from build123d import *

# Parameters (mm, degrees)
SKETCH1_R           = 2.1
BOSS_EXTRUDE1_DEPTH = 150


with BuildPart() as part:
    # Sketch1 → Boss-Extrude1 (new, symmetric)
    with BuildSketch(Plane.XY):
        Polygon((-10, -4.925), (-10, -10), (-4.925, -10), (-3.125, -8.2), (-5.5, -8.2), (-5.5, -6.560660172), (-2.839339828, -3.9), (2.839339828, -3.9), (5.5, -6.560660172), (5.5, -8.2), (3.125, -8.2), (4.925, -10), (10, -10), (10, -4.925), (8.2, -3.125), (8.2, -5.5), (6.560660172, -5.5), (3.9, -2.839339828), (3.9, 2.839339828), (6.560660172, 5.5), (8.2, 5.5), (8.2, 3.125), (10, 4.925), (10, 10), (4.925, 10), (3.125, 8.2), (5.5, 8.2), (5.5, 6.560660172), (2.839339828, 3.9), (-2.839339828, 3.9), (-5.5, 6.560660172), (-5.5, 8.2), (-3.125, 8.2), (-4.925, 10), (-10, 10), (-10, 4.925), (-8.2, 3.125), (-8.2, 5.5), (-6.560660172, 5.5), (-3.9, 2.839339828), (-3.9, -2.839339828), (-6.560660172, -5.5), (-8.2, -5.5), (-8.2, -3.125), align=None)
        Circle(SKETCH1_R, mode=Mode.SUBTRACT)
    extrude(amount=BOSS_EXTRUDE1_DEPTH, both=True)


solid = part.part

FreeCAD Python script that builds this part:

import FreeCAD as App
import Part
import Sketcher

doc = App.newDocument("Part")
params = doc.addObject("Spreadsheet::Sheet", "Params")
for row, (alias, value) in enumerate([
    ("sketch1_diameter", "4.2 mm"),
    ("pad1_length", "300 mm"),
], start=1):
    params.set(f"A{row}", alias)
    params.set(f"B{row}", "=" + value)
    params.setAlias(f"B{row}", alias)

body = doc.addObject("PartDesign::Body", "Body")

sketch1 = body.newObject("Sketcher::SketchObject", "Sketch")
sketch1.AttachmentSupport = (doc.getObject("XY_Plane"), [""])
sketch1.MapMode = "FlatFace"
sketch1.addGeometry([
    Part.LineSegment(App.Vector(-10, -4.925, 0), App.Vector(-10, -10, 0)),
    Part.LineSegment(App.Vector(-10, -10, 0), App.Vector(-4.925, -10, 0)),
    Part.LineSegment(App.Vector(-4.925, -10, 0), App.Vector(-3.125, -8.2, 0)),
    Part.LineSegment(App.Vector(-3.125, -8.2, 0), App.Vector(-5.5, -8.2, 0)),
    Part.LineSegment(App.Vector(-5.5, -8.2, 0), App.Vector(-5.5, -6.56066, 0)),
    Part.LineSegment(App.Vector(-5.5, -6.56066, 0), App.Vector(-2.83934, -3.9, 0)),
    Part.LineSegment(App.Vector(-2.83934, -3.9, 0), App.Vector(2.83934, -3.9, 0)),
    Part.LineSegment(App.Vector(2.83934, -3.9, 0), App.Vector(5.5, -6.56066, 0)),
    Part.LineSegment(App.Vector(5.5, -6.56066, 0), App.Vector(5.5, -8.2, 0)),
    Part.LineSegment(App.Vector(5.5, -8.2, 0), App.Vector(3.125, -8.2, 0)),
    Part.LineSegment(App.Vector(3.125, -8.2, 0), App.Vector(4.925, -10, 0)),
    Part.LineSegment(App.Vector(4.925, -10, 0), App.Vector(10, -10, 0)),
    Part.LineSegment(App.Vector(10, -10, 0), App.Vector(10, -4.925, 0)),
    Part.LineSegment(App.Vector(10, -4.925, 0), App.Vector(8.2, -3.125, 0)),
    Part.LineSegment(App.Vector(8.2, -3.125, 0), App.Vector(8.2, -5.5, 0)),
    Part.LineSegment(App.Vector(8.2, -5.5, 0), App.Vector(6.56066, -5.5, 0)),
    Part.LineSegment(App.Vector(6.56066, -5.5, 0), App.Vector(3.9, -2.83934, 0)),
    Part.LineSegment(App.Vector(3.9, -2.83934, 0), App.Vector(3.9, 2.83934, 0)),
    Part.LineSegment(App.Vector(3.9, 2.83934, 0), App.Vector(6.56066, 5.5, 0)),
    Part.LineSegment(App.Vector(6.56066, 5.5, 0), App.Vector(8.2, 5.5, 0)),
    Part.LineSegment(App.Vector(8.2, 5.5, 0), App.Vector(8.2, 3.125, 0)),
    Part.LineSegment(App.Vector(8.2, 3.125, 0), App.Vector(10, 4.925, 0)),
    Part.LineSegment(App.Vector(10, 4.925, 0), App.Vector(10, 10, 0)),
    Part.LineSegment(App.Vector(10, 10, 0), App.Vector(4.925, 10, 0)),
    Part.LineSegment(App.Vector(4.925, 10, 0), App.Vector(3.125, 8.2, 0)),
    Part.LineSegment(App.Vector(3.125, 8.2, 0), App.Vector(5.5, 8.2, 0)),
    Part.LineSegment(App.Vector(5.5, 8.2, 0), App.Vector(5.5, 6.56066, 0)),
    Part.LineSegment(App.Vector(5.5, 6.56066, 0), App.Vector(2.83934, 3.9, 0)),
    Part.LineSegment(App.Vector(2.83934, 3.9, 0), App.Vector(-2.83934, 3.9, 0)),
    Part.LineSegment(App.Vector(-2.83934, 3.9, 0), App.Vector(-5.5, 6.56066, 0)),
    Part.LineSegment(App.Vector(-5.5, 6.56066, 0), App.Vector(-5.5, 8.2, 0)),
    Part.LineSegment(App.Vector(-5.5, 8.2, 0), App.Vector(-3.125, 8.2, 0)),
    Part.LineSegment(App.Vector(-3.125, 8.2, 0), App.Vector(-4.925, 10, 0)),
    Part.LineSegment(App.Vector(-4.925, 10, 0), App.Vector(-10, 10, 0)),
    Part.LineSegment(App.Vector(-10, 10, 0), App.Vector(-10, 4.925, 0)),
    Part.LineSegment(App.Vector(-10, 4.925, 0), App.Vector(-8.2, 3.125, 0)),
    Part.LineSegment(App.Vector(-8.2, 3.125, 0), App.Vector(-8.2, 5.5, 0)),
    Part.LineSegment(App.Vector(-8.2, 5.5, 0), App.Vector(-6.56066, 5.5, 0)),
    Part.LineSegment(App.Vector(-6.56066, 5.5, 0), App.Vector(-3.9, 2.83934, 0)),
    Part.LineSegment(App.Vector(-3.9, 2.83934, 0), App.Vector(-3.9, -2.83934, 0)),
    Part.LineSegment(App.Vector(-3.9, -2.83934, 0), App.Vector(-6.56066, -5.5, 0)),
    Part.LineSegment(App.Vector(-6.56066, -5.5, 0), App.Vector(-8.2, -5.5, 0)),
    Part.LineSegment(App.Vector(-8.2, -5.5, 0), App.Vector(-8.2, -3.125, 0)),
    Part.LineSegment(App.Vector(-8.2, -3.125, 0), App.Vector(-10, -4.925, 0)),
    Part.Circle(App.Vector(0, 0, 0), App.Vector(0, 0, 1), 2.1),
], False)
sketch1.addConstraint([
    Sketcher.Constraint("Coincident", 0, 2, 1, 1),
    Sketcher.Constraint("Coincident", 1, 2, 2, 1),
    Sketcher.Constraint("Coincident", 2, 2, 3, 1),
    Sketcher.Constraint("Coincident", 3, 2, 4, 1),
    Sketcher.Constraint("Coincident", 4, 2, 5, 1),
    Sketcher.Constraint("Coincident", 5, 2, 6, 1),
    Sketcher.Constraint("Coincident", 6, 2, 7, 1),
    Sketcher.Constraint("Coincident", 7, 2, 8, 1),
    Sketcher.Constraint("Coincident", 8, 2, 9, 1),
    Sketcher.Constraint("Coincident", 9, 2, 10, 1),
    Sketcher.Constraint("Coincident", 10, 2, 11, 1),
    Sketcher.Constraint("Coincident", 11, 2, 12, 1),
    Sketcher.Constraint("Coincident", 12, 2, 13, 1),
    Sketcher.Constraint("Coincident", 13, 2, 14, 1),
    Sketcher.Constraint("Coincident", 14, 2, 15, 1),
    Sketcher.Constraint("Coincident", 15, 2, 16, 1),
    Sketcher.Constraint("Coincident", 16, 2, 17, 1),
    Sketcher.Constraint("Coincident", 17, 2, 18, 1),
    Sketcher.Constraint("Coincident", 18, 2, 19, 1),
    Sketcher.Constraint("Coincident", 19, 2, 20, 1),
    Sketcher.Constraint("Coincident", 20, 2, 21, 1),
    Sketcher.Constraint("Coincident", 21, 2, 22, 1),
    Sketcher.Constraint("Coincident", 22, 2, 23, 1),
    Sketcher.Constraint("Coincident", 23, 2, 24, 1),
    Sketcher.Constraint("Coincident", 24, 2, 25, 1),
    Sketcher.Constraint("Coincident", 25, 2, 26, 1),
    Sketcher.Constraint("Coincident", 26, 2, 27, 1),
    Sketcher.Constraint("Coincident", 27, 2, 28, 1),
    Sketcher.Constraint("Coincident", 28, 2, 29, 1),
    Sketcher.Constraint("Coincident", 29, 2, 30, 1),
    Sketcher.Constraint("Coincident", 30, 2, 31, 1),
    Sketcher.Constraint("Coincident", 31, 2, 32, 1),
    Sketcher.Constraint("Coincident", 32, 2, 33, 1),
    Sketcher.Constraint("Coincident", 33, 2, 34, 1),
    Sketcher.Constraint("Coincident", 34, 2, 35, 1),
    Sketcher.Constraint("Coincident", 35, 2, 36, 1),
    Sketcher.Constraint("Coincident", 36, 2, 37, 1),
    Sketcher.Constraint("Coincident", 37, 2, 38, 1),
    Sketcher.Constraint("Coincident", 38, 2, 39, 1),
    Sketcher.Constraint("Coincident", 39, 2, 40, 1),
    Sketcher.Constraint("Coincident", 40, 2, 41, 1),
    Sketcher.Constraint("Coincident", 41, 2, 42, 1),
    Sketcher.Constraint("Coincident", 42, 2, 43, 1),
    Sketcher.Constraint("Coincident", 43, 2, 0, 1),
    Sketcher.Constraint("Vertical", 0),
    Sketcher.Constraint("Horizontal", 1),
    Sketcher.Constraint("Horizontal", 3),
    Sketcher.Constraint("Vertical", 4),
    Sketcher.Constraint("Horizontal", 6),
    Sketcher.Constraint("Vertical", 8),
    Sketcher.Constraint("Horizontal", 9),
    Sketcher.Constraint("Horizontal", 11),
    Sketcher.Constraint("Vertical", 12),
    Sketcher.Constraint("Vertical", 14),
    Sketcher.Constraint("Horizontal", 15),
    Sketcher.Constraint("Vertical", 17),
    Sketcher.Constraint("Horizontal", 19),
    Sketcher.Constraint("Vertical", 20),
    Sketcher.Constraint("Vertical", 22),
    Sketcher.Constraint("Horizontal", 23),
    Sketcher.Constraint("Horizontal", 25),
    Sketcher.Constraint("Vertical", 26),
    Sketcher.Constraint("Horizontal", 28),
    Sketcher.Constraint("Vertical", 30),
    Sketcher.Constraint("Horizontal", 31),
    Sketcher.Constraint("Horizontal", 33),
    Sketcher.Constraint("Vertical", 34),
    Sketcher.Constraint("Vertical", 36),
    Sketcher.Constraint("Horizontal", 37),
    Sketcher.Constraint("Vertical", 39),
    Sketcher.Constraint("Horizontal", 41),
    Sketcher.Constraint("Vertical", 42),
    Sketcher.Constraint("Coincident", 44, 3, -1, 1),
    Sketcher.Constraint("Symmetric", 0, 2, 22, 2, -1, 1),
    Sketcher.Constraint("Symmetric", 2, 2, 24, 2, -1, 1),
    Sketcher.Constraint("Symmetric", 4, 2, 26, 2, -1, 1),
    Sketcher.Constraint("Symmetric", 5, 2, 27, 2, -1, 1),
    Sketcher.Constraint("Symmetric", 7, 2, 29, 2, -1, 1),
    Sketcher.Constraint("Symmetric", 9, 2, 31, 2, -1, 1),
    Sketcher.Constraint("Symmetric", 10, 2, 32, 2, -1, 1),
    Sketcher.Constraint("Symmetric", 12, 2, 34, 2, -1, 1),
    Sketcher.Constraint("Symmetric", 13, 2, 35, 2, -1, 1),
    Sketcher.Constraint("Symmetric", 15, 2, 37, 2, -1, 1),
    Sketcher.Constraint("Symmetric", 16, 2, 38, 2, -1, 1),
    Sketcher.Constraint("Symmetric", 18, 2, 40, 2, -1, 1),
    Sketcher.Constraint("Symmetric", 20, 2, 42, 2, -1, 1),
    Sketcher.Constraint("Symmetric", 4, 2, 7, 2, -2),
    Sketcher.Constraint("Symmetric", 2, 2, 9, 2, -2),
    Sketcher.Constraint("Symmetric", 1, 2, 10, 2, -2),
    Sketcher.Constraint("Symmetric", 21, 2, 34, 2, -2),
    Sketcher.Constraint("Symmetric", 20, 2, 35, 2, -2),
    Sketcher.Constraint("Symmetric", 18, 2, 37, 2, -2),
    Sketcher.Constraint("Parallel", 2, 5),
    Sketcher.Constraint("Perpendicular", 5, 7),
    Sketcher.Constraint("Parallel", 7, 10),
    Sketcher.Constraint("Parallel", 10, 13),
    Sketcher.Constraint("Parallel", 13, 16),
    Sketcher.Constraint("Perpendicular", 16, 18),
    Sketcher.Constraint("Parallel", 21, 24),
    Sketcher.Constraint("Perpendicular", 27, 29),
    Sketcher.Constraint("Perpendicular", 38, 40),
    Sketcher.Constraint("Parallel", 40, 43),
    Sketcher.Constraint("Equal", 33, 0),
    Sketcher.Constraint("Equal", 41, 4),
    Sketcher.Constraint("Equal", 31, 14),
    Sketcher.Constraint("Equal", 28, 17),
    Sketcher.Constraint("Equal", 10, 13),
    Sketcher.Constraint("Equal", 7, 16),
    Sketcher.Constraint("Diameter", 44, 4.2),
    Sketcher.Constraint("DistanceX", 0, 2, -1, 1, 10.0),
    Sketcher.Constraint("DistanceY", 2, 2, -1, 1, 8.2),
    Sketcher.Constraint("DistanceX", 3, 2, -1, 1, 5.5),
    Sketcher.Constraint("DistanceY", 5, 2, -1, 1, 3.9),
    Sketcher.Constraint("DistanceX", 1, 1, 1, 2, 5.075),
    Sketcher.Constraint("DistanceX", 6, 1, 6, 2, 5.67868),
])
sketch1.setExpression("Constraints[108]", "Params.sketch1_diameter")
pad1 = body.newObject("PartDesign::Pad", "Pad")
pad1.Profile = sketch1
pad1.setExpression("Length", "Params.pad1_length")
pad1.Midplane = True

doc.recompute()
